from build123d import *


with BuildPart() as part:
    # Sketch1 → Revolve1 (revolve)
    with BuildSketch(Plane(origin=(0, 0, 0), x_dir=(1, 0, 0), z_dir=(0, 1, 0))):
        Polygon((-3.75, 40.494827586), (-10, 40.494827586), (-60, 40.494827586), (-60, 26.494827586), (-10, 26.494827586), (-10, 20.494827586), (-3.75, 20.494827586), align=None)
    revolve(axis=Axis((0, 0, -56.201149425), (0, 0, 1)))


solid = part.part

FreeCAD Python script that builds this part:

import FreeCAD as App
import Part
import Sketcher

V = App.Vector
Q = App.Units.Quantity


def add_polygon(sketch, points):
    """Adds a closed chain of lines whose ends are joined by coincident constraints."""
    first, n = sketch.GeometryCount, len(points)
    for a, b in zip(points, points[1:] + points[:1]):
        sketch.addGeometry(Part.LineSegment(App.Vector(*a, 0), App.Vector(*b, 0)), False)
    for i in range(n):
        sketch.addConstraint(Sketcher.Constraint("Coincident", first + i, 2, first + (i + 1) % n, 1))

doc = App.newDocument("Part")
body = doc.addObject("PartDesign::Body", "Body")

sketch1 = body.newObject("Sketcher::SketchObject", "Sketch")
sketch1.AttachmentSupport = (doc.getObject("XZ_Plane"), [""])
sketch1.MapMode = "FlatFace"
add_polygon(sketch1, [(-4, -40), (-60, -40), (-60, -26), (-10, -26), (-10, -20), (-4, -20)])
sketch1.addConstraint([
    Sketcher.Constraint("Horizontal", 0),
    Sketcher.Constraint("Vertical", 1),
    Sketcher.Constraint("Horizontal", 2),
    Sketcher.Constraint("Vertical", 3),
    Sketcher.Constraint("Horizontal", 4),
    Sketcher.Constraint("Vertical", 5),
    Sketcher.Constraint("DistanceX", 2, 1, 2, 2, Q("50 mm")),
    Sketcher.Constraint("DistanceY", 1, 1, 1, 2, Q("14 mm")),
    Sketcher.Constraint("DistanceY", 3, 1, 3, 2, Q("6 mm")),
    Sketcher.Constraint("DistanceX", 0, 2, -1, 1, Q("60 mm")),
    Sketcher.Constraint("DistanceX", 0, 2, 0, 1, Q("56.25 mm")),
    Sketcher.Constraint("DistanceY", 0, 2, -1, 1, Q("40.494828 mm")),
])
revolution = body.newObject("PartDesign::Revolution", "Revolution")
revolution.Profile = sketch1
revolution.ReferenceAxis = (sketch1, ["V_Axis"])
revolution.Angle = 360

doc.recompute()
